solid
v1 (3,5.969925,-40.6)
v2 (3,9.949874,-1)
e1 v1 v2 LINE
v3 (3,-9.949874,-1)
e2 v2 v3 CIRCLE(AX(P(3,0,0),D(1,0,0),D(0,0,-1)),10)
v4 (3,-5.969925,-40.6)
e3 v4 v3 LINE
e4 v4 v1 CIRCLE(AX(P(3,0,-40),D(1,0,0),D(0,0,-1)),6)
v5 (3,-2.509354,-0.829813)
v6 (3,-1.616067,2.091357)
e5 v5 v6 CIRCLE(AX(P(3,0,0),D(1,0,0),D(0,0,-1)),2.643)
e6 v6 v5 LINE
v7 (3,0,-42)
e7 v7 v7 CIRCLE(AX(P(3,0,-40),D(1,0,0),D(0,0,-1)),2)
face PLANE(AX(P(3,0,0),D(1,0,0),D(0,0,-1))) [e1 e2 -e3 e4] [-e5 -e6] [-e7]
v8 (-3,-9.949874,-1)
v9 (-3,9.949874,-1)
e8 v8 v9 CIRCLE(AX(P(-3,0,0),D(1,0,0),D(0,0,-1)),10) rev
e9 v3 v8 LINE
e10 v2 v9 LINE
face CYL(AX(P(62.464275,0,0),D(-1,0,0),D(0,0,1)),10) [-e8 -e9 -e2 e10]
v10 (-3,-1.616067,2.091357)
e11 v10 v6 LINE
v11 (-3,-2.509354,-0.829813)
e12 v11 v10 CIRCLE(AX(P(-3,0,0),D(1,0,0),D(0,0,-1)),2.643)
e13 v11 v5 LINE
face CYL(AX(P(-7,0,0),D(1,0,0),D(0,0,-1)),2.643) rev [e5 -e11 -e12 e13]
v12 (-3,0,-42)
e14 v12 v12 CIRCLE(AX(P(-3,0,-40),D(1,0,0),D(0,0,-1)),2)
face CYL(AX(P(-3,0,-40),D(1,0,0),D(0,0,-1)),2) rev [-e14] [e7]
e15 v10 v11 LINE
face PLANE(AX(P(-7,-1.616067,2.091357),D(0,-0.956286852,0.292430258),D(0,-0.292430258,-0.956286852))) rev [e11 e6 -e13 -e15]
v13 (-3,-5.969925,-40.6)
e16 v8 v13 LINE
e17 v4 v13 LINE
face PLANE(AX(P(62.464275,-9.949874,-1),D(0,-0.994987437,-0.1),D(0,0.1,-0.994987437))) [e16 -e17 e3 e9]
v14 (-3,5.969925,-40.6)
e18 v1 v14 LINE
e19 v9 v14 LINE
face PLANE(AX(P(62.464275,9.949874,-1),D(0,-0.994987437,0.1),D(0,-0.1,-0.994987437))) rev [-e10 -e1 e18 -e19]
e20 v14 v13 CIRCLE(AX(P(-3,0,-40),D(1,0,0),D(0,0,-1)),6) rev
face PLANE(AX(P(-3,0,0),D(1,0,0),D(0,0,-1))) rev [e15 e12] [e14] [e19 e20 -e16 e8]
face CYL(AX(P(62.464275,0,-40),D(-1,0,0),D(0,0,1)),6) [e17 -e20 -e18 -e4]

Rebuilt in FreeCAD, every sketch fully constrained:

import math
import FreeCAD as App
import Part
import Sketcher
Q = App.Units.Quantity

doc = App.newDocument("Part")
params = doc.addObject("Spreadsheet::Sheet", "Params")
for row, (alias, value) in enumerate([
    ("sketch1_radius", "10 mm"),
    ("sketch1_radius2", "6 mm"),
    ("pad1_length", "3 mm"),
    ("pad1_length2", "3 mm"),
    ("sketch2_diameter", "4 mm"),
    ("pocket2_length", "10 mm"),
], start=1):
    params.set(f"A{row}", alias)
    params.set(f"B{row}", "=" + value)
    params.setAlias(f"B{row}", alias)

body = doc.addObject("PartDesign::Body", "Body")

# Sketch on YZ plane
sketch1 = body.newObject("Sketcher::SketchObject", "Sketch")
sketch1.AttachmentSupport = (doc.getObject("YZ_Plane"), [""])
sketch1.MapMode = "FlatFace"
sketch1.addGeometry(Part.ArcOfCircle(Part.Circle(App.Vector(0, 0, 0), App.Vector(0, 0, 1), 10), math.radians(-6), math.radians(186)), False)
sketch1.addGeometry(Part.LineSegment(App.Vector(-10, -1, 0), App.Vector(-6, -41, 0)), False)
sketch1.addGeometry(Part.ArcOfCircle(Part.Circle(App.Vector(0, -40, 0), App.Vector(0, 0, 1), 6), math.radians(-174), math.radians(-6)), False)
sketch1.addGeometry(Part.LineSegment(App.Vector(6, -41, 0), App.Vector(10, -1, 0)), False)
sketch1.addConstraint(Sketcher.Constraint("Tangent", 0, 2, 1, 1))
sketch1.addConstraint(Sketcher.Constraint("Tangent", 1, 2, 2, 1))
sketch1.addConstraint(Sketcher.Constraint("Tangent", 2, 2, 3, 1))
sketch1.addConstraint(Sketcher.Constraint("Tangent", 3, 2, 0, 1))
sketch1.addConstraint(Sketcher.Constraint("Coincident", 0, 3, -1, 1))
sketch1.addConstraint(Sketcher.Constraint("PointOnObject", 2, 3, -2))
sketch1.addConstraint(Sketcher.Constraint("Radius", 0, Q("10 mm")))
sketch1.addConstraint(Sketcher.Constraint("Radius", 2, Q("6 mm")))
sketch1.addConstraint(Sketcher.Constraint("DistanceY", 2, 3, -1, 1, Q("40 mm")))
sketch1.setExpression("Constraints[6]", "Params.sketch1_radius")
sketch1.setExpression("Constraints[7]", "Params.sketch1_radius2")
pad1 = body.newObject("PartDesign::Pad", "Pad")
pad1.Profile = sketch1
pad1.Type = "TwoLengths"
pad1.setExpression("Length", "Params.pad1_length")
pad1.setExpression("Length2", "Params.pad1_length2")

# Sketch on YZ plane
sketch2 = body.newObject("Sketcher::SketchObject", "Sketch001")
sketch2.AttachmentSupport = (doc.getObject("YZ_Plane"), [""])
sketch2.MapMode = "FlatFace"
sketch2.addGeometry(Part.Circle(App.Vector(0, -40, 0), App.Vector(0, 0, 1), 2), False)
sketch2.addConstraint(Sketcher.Constraint("PointOnObject", 0, 3, -2))
sketch2.addConstraint(Sketcher.Constraint("Diameter", 0, Q("4 mm")))
sketch2.addConstraint(Sketcher.Constraint("DistanceY", 0, 3, -1, 1, Q("40 mm")))
sketch2.setExpression("Constraints[1]", "Params.sketch2_diameter")
pocket1 = body.newObject("PartDesign::Pocket", "Pocket")
pocket1.Profile = sketch2
pocket1.Type = "ThroughAll"
pocket1.Midplane = True

# Sketch on YZ plane
sketch3 = body.newObject("Sketcher::SketchObject", "Sketch002")
sketch3.AttachmentSupport = (doc.getObject("YZ_Plane"), [""])
sketch3.MapMode = "FlatFace"
sketch3.AttachmentOffset = App.Placement(App.Vector(0, 0, 3), App.Rotation())
sketch3.addGeometry(Part.LineSegment(App.Vector(-1.6, 2.1, 0), App.Vector(-2.5, -0.8, 0)), False)
sketch3.addGeometry(Part.ArcOfCircle(Part.Circle(App.Vector(0, 0, 0), App.Vector(0, 0, 1), 2.6), math.radians(-162), math.radians(128)), False)
sketch3.addConstraint(Sketcher.Constraint("Coincident", 0, 1, 1, 2))
sketch3.addConstraint(Sketcher.Constraint("Coincident", 1, 1, 0, 2))
sketch3.addConstraint(Sketcher.Constraint("Coincident", 1, 3, -1, 1))
sketch3.addConstraint(Sketcher.Constraint("Radius", 1, Q("2.643 mm")))
sketch3.addConstraint(Sketcher.Constraint("Distance", 0, Q("3.054701 mm")))
sketch3.addConstraint(Sketcher.Constraint("DistanceY", 1, 1, 0, 1, Q("2.921171 mm")))
pocket2 = body.newObject("PartDesign::Pocket", "Pocket001")
pocket2.Profile = sketch3
pocket2.setExpression("Length", "Params.pocket2_length")

doc.recompute()
